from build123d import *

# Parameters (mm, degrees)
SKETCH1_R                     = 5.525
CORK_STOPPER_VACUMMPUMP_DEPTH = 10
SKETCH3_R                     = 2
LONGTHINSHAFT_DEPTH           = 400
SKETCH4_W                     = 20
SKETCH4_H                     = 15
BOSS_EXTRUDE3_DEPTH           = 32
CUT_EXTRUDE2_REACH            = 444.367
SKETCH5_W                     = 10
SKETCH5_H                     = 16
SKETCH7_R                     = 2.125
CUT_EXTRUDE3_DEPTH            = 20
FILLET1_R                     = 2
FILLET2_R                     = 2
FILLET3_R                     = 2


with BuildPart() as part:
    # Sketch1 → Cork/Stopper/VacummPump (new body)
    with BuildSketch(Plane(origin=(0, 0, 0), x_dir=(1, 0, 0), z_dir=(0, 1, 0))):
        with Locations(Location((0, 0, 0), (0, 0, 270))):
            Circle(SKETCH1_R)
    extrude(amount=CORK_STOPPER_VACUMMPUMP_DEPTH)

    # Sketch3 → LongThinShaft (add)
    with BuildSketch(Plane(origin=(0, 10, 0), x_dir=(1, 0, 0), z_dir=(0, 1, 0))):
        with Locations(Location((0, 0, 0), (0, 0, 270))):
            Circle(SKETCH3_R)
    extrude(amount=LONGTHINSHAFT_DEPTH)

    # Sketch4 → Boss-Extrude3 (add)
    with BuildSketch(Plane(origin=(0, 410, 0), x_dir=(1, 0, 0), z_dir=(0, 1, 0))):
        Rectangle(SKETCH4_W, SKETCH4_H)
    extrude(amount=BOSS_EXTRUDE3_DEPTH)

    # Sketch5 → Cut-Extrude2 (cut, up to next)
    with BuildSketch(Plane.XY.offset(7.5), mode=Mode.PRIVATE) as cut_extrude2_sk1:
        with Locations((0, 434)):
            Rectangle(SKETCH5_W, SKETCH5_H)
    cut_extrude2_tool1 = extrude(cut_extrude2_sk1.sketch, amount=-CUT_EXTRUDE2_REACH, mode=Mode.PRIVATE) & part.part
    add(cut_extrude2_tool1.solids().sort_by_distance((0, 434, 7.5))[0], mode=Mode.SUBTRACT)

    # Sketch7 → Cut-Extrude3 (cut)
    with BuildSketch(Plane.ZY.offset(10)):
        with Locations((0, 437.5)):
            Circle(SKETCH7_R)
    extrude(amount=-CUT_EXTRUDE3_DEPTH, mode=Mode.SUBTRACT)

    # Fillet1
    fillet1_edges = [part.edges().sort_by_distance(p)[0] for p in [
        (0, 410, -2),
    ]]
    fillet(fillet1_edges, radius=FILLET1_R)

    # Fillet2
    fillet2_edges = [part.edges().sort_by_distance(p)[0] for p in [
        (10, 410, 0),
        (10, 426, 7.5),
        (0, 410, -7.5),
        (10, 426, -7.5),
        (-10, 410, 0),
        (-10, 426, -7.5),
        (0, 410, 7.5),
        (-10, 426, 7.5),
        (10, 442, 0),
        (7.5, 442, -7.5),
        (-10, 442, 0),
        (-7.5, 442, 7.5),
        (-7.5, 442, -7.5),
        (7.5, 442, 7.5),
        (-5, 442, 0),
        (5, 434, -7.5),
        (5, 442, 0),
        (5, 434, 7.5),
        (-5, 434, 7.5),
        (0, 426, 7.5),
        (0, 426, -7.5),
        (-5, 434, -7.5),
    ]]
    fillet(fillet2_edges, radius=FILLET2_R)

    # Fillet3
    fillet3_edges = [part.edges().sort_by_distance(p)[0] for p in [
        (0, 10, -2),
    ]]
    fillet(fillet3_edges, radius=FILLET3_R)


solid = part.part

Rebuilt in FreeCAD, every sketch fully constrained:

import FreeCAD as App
import Part
import Sketcher

V = App.Vector
Q = App.Units.Quantity


def edges_at(feature, points):
    """Names of the edges that pass closest to the given points."""
    edges = feature.Shape.Edges
    near = lambda p: min(range(len(edges)), key=lambda i: edges[i].distToShape(Part.Vertex(*p))[0])
    return sorted({f"Edge{near(p) + 1}" for p in points})

doc = App.newDocument("Part")
params = doc.addObject("Spreadsheet::Sheet", "Params")
for row, (alias, value) in enumerate([
    ("sketch1_diameter", "11.05 mm"),
    ("pad1_length", "10 mm"),
    ("sketch2_diameter", "4 mm"),
    ("pad2_length", "400 mm"),
    ("sketch3_width", "20 mm"),
    ("sketch3_height", "15 mm"),
    ("pad3_length", "32 mm"),
    ("sketch4_width", "10 mm"),
    ("sketch4_height", "16 mm"),
    ("sketch5_diameter", "4.25 mm"),
    ("pocket2_length", "20 mm"),
    ("fillet_radius", "2 mm"),
    ("fillet2_radius", "2 mm"),
    ("fillet3_radius", "2 mm"),
], start=1):
    params.set(f"A{row}", alias)
    params.set(f"B{row}", "=" + value)
    params.setAlias(f"B{row}", alias)

body = doc.addObject("PartDesign::Body", "Body")

# Sketch on XZ plane
sketch1 = doc.addObject("Sketcher::SketchObject", "Sketch")
body.addObject(sketch1)
sketch1.AttachmentSupport = (doc.XZ_Plane, [""])
sketch1.MapMode = "FlatFace"
sketch1.addGeometry(Part.Circle(V(0, 0, 0), V(0, 0, 1), 6), False)
sketch1.addConstraint(Sketcher.Constraint("Coincident", 0, 3, -1, 1))
sketch1.addConstraint(Sketcher.Constraint("Diameter", 0, Q("11.05 mm")))
sketch1.setExpression("Constraints[1]", "Params.sketch1_diameter")
pad1 = doc.addObject("PartDesign::Pad", "Pad")
body.addObject(pad1)
pad1.Profile = sketch1
pad1.setExpression("Length", "Params.pad1_length")
pad1.Reversed = True

# Sketch on XZ plane
sketch2 = doc.addObject("Sketcher::SketchObject", "Sketch001")
body.addObject(sketch2)
sketch2.AttachmentSupport = (doc.XZ_Plane, [""])
sketch2.MapMode = "FlatFace"
sketch2.AttachmentOffset = App.Placement(V(0, 0, -10), App.Rotation())
sketch2.addGeometry(Part.Circle(V(0, 0, 0), V(0, 0, 1), 2), False)
sketch2.addConstraint(Sketcher.Constraint("Coincident", 0, 3, -1, 1))
sketch2.addConstraint(Sketcher.Constraint("Diameter", 0, Q("4 mm")))
sketch2.setExpression("Constraints[1]", "Params.sketch2_diameter")
pad2 = doc.addObject("PartDesign::Pad", "Pad001")
body.addObject(pad2)
pad2.Profile = sketch2
pad2.setExpression("Length", "Params.pad2_length")
pad2.Reversed = True

# Sketch on XZ plane
sketch3 = doc.addObject("Sketcher::SketchObject", "Sketch002")
body.addObject(sketch3)
sketch3.AttachmentSupport = (doc.XZ_Plane, [""])
sketch3.MapMode = "FlatFace"
sketch3.AttachmentOffset = App.Placement(V(0, 0, -410), App.Rotation())
sketch3.addGeometry(Part.LineSegment(V(-10, -8, 0), V(-10, 8, 0)), False)
sketch3.addGeometry(Part.LineSegment(V(-10, 8, 0), V(10, 8, 0)), False)
sketch3.addGeometry(Part.LineSegment(V(10, 8, 0), V(10, -8, 0)), False)
sketch3.addGeometry(Part.LineSegment(V(10, -8, 0), V(-10, -8, 0)), False)
sketch3.addConstraint(Sketcher.Constraint("Coincident", 0, 2, 1, 1))
sketch3.addConstraint(Sketcher.Constraint("Coincident", 1, 2, 2, 1))
sketch3.addConstraint(Sketcher.Constraint("Coincident", 2, 2, 3, 1))
sketch3.addConstraint(Sketcher.Constraint("Coincident", 3, 2, 0, 1))
sketch3.addConstraint(Sketcher.Constraint("Vertical", 0))
sketch3.addConstraint(Sketcher.Constraint("Horizontal", 1))
sketch3.addConstraint(Sketcher.Constraint("Vertical", 2))
sketch3.addConstraint(Sketcher.Constraint("Horizontal", 3))
sketch3.addConstraint(Sketcher.Constraint("Symmetric", 0, 2, 2, 2, -1, 1))
sketch3.addConstraint(Sketcher.Constraint("DistanceX", 1, 1, 1, 2, Q("20 mm")))
sketch3.addConstraint(Sketcher.Constraint("DistanceY", 0, 1, 0, 2, Q("15 mm")))
sketch3.setExpression("Constraints[9]", "Params.sketch3_width")
sketch3.setExpression("Constraints[10]", "Params.sketch3_height")
pad3 = doc.addObject("PartDesign::Pad", "Pad002")
body.addObject(pad3)
pad3.Profile = sketch3
pad3.setExpression("Length", "Params.pad3_length")
pad3.Reversed = True

# Sketch on XY plane
sketch4 = doc.addObject("Sketcher::SketchObject", "Sketch003")
body.addObject(sketch4)
sketch4.AttachmentSupport = (doc.XY_Plane, [""])
sketch4.MapMode = "FlatFace"
sketch4.AttachmentOffset = App.Placement(V(0, 0, 7.5), App.Rotation())
sketch4.addGeometry(Part.LineSegment(V(-5, 442, 0), V(-5, 426, 0)), False)
sketch4.addGeometry(Part.LineSegment(V(-5, 426, 0), V(5, 426, 0)), False)
sketch4.addGeometry(Part.LineSegment(V(5, 426, 0), V(5, 442, 0)), False)
sketch4.addGeometry(Part.LineSegment(V(5, 442, 0), V(-5, 442, 0)), False)
sketch4.addConstraint(Sketcher.Constraint("Coincident", 0, 2, 1, 1))
sketch4.addConstraint(Sketcher.Constraint("Coincident", 1, 2, 2, 1))
sketch4.addConstraint(Sketcher.Constraint("Coincident", 2, 2, 3, 1))
sketch4.addConstraint(Sketcher.Constraint("Coincident", 3, 2, 0, 1))
sketch4.addConstraint(Sketcher.Constraint("Vertical", 0))
sketch4.addConstraint(Sketcher.Constraint("Horizontal", 1))
sketch4.addConstraint(Sketcher.Constraint("Vertical", 2))
sketch4.addConstraint(Sketcher.Constraint("Horizontal", 3))
sketch4.addConstraint(Sketcher.Constraint("DistanceX", 1, 1, 1, 2, Q("10 mm")))
sketch4.addConstraint(Sketcher.Constraint("DistanceY", 0, 2, 0, 1, Q("16 mm")))
sketch4.addConstraint(Sketcher.Constraint("DistanceX", 0, 2, -1, 1, Q("5 mm")))
sketch4.addConstraint(Sketcher.Constraint("DistanceY", -1, 1, 0, 2, Q("426 mm")))
sketch4.setExpression("Constraints[8]", "Params.sketch4_width")
sketch4.setExpression("Constraints[9]", "Params.sketch4_height")
pocket1 = doc.addObject("PartDesign::Pocket", "Pocket")
body.addObject(pocket1)
pocket1.Profile = sketch4
pocket1.Type = "UpToFirst"

# Sketch on YZ plane
sketch5 = doc.addObject("Sketcher::SketchObject", "Sketch004")
body.addObject(sketch5)
sketch5.AttachmentSupport = (doc.YZ_Plane, [""])
sketch5.MapMode = "FlatFace"
sketch5.AttachmentOffset = App.Placement(V(0, 0, -10), App.Rotation())
sketch5.addGeometry(Part.Circle(V(437.5, 0, 0), V(0, 0, 1), 2.1), False)
sketch5.addConstraint(Sketcher.Constraint("PointOnObject", 0, 3, -1))
sketch5.addConstraint(Sketcher.Constraint("Diameter", 0, Q("4.25 mm")))
sketch5.addConstraint(Sketcher.Constraint("DistanceX", -1, 1, 0, 3, Q("437.5 mm")))
sketch5.setExpression("Constraints[1]", "Params.sketch5_diameter")
pocket2 = doc.addObject("PartDesign::Pocket", "Pocket001")
body.addObject(pocket2)
pocket2.Profile = sketch5
pocket2.setExpression("Length", "Params.pocket2_length")
pocket2.Reversed = True
doc.recompute()

fillet = doc.addObject("PartDesign::Fillet", "Fillet")
body.addObject(fillet)
fillet.Base = (pocket2, edges_at(pocket2, [(0, 410, -2)]))
fillet.setExpression("Radius", "Params.fillet_radius")
doc.recompute()

fillet2 = doc.addObject("PartDesign::Fillet", "Fillet001")
body.addObject(fillet2)
fillet2.Base = (fillet, edges_at(fillet, [
    (10, 410, 0),
    (10, 426, 7.5),
    (0, 410, -7.5),
    (10, 426, -7.5),
    (-10, 410, 0),
    (-10, 426, -7.5),
    (0, 410, 7.5),
    (-10, 426, 7.5),
    (10, 442, 0),
    (7.5, 442, -7.5),
    (-10, 442, 0),
    (-7.5, 442, 7.5),
    (-7.5, 442, -7.5),
    (7.5, 442, 7.5),
    (-5, 442, 0),
    (5, 434, -7.5),
    (5, 442, 0),
    (5, 434, 7.5),
    (-5, 434, 7.5),
    (0, 426, 7.5),
    (0, 426, -7.5),
    (-5, 434, -7.5),
]))
fillet2.setExpression("Radius", "Params.fillet2_radius")
doc.recompute()

fillet3 = doc.addObject("PartDesign::Fillet", "Fillet002")
body.addObject(fillet3)
fillet3.Base = (fillet2, edges_at(fillet2, [(0, 10, -2)]))
fillet3.setExpression("Radius", "Params.fillet3_radius")

doc.recompute()
